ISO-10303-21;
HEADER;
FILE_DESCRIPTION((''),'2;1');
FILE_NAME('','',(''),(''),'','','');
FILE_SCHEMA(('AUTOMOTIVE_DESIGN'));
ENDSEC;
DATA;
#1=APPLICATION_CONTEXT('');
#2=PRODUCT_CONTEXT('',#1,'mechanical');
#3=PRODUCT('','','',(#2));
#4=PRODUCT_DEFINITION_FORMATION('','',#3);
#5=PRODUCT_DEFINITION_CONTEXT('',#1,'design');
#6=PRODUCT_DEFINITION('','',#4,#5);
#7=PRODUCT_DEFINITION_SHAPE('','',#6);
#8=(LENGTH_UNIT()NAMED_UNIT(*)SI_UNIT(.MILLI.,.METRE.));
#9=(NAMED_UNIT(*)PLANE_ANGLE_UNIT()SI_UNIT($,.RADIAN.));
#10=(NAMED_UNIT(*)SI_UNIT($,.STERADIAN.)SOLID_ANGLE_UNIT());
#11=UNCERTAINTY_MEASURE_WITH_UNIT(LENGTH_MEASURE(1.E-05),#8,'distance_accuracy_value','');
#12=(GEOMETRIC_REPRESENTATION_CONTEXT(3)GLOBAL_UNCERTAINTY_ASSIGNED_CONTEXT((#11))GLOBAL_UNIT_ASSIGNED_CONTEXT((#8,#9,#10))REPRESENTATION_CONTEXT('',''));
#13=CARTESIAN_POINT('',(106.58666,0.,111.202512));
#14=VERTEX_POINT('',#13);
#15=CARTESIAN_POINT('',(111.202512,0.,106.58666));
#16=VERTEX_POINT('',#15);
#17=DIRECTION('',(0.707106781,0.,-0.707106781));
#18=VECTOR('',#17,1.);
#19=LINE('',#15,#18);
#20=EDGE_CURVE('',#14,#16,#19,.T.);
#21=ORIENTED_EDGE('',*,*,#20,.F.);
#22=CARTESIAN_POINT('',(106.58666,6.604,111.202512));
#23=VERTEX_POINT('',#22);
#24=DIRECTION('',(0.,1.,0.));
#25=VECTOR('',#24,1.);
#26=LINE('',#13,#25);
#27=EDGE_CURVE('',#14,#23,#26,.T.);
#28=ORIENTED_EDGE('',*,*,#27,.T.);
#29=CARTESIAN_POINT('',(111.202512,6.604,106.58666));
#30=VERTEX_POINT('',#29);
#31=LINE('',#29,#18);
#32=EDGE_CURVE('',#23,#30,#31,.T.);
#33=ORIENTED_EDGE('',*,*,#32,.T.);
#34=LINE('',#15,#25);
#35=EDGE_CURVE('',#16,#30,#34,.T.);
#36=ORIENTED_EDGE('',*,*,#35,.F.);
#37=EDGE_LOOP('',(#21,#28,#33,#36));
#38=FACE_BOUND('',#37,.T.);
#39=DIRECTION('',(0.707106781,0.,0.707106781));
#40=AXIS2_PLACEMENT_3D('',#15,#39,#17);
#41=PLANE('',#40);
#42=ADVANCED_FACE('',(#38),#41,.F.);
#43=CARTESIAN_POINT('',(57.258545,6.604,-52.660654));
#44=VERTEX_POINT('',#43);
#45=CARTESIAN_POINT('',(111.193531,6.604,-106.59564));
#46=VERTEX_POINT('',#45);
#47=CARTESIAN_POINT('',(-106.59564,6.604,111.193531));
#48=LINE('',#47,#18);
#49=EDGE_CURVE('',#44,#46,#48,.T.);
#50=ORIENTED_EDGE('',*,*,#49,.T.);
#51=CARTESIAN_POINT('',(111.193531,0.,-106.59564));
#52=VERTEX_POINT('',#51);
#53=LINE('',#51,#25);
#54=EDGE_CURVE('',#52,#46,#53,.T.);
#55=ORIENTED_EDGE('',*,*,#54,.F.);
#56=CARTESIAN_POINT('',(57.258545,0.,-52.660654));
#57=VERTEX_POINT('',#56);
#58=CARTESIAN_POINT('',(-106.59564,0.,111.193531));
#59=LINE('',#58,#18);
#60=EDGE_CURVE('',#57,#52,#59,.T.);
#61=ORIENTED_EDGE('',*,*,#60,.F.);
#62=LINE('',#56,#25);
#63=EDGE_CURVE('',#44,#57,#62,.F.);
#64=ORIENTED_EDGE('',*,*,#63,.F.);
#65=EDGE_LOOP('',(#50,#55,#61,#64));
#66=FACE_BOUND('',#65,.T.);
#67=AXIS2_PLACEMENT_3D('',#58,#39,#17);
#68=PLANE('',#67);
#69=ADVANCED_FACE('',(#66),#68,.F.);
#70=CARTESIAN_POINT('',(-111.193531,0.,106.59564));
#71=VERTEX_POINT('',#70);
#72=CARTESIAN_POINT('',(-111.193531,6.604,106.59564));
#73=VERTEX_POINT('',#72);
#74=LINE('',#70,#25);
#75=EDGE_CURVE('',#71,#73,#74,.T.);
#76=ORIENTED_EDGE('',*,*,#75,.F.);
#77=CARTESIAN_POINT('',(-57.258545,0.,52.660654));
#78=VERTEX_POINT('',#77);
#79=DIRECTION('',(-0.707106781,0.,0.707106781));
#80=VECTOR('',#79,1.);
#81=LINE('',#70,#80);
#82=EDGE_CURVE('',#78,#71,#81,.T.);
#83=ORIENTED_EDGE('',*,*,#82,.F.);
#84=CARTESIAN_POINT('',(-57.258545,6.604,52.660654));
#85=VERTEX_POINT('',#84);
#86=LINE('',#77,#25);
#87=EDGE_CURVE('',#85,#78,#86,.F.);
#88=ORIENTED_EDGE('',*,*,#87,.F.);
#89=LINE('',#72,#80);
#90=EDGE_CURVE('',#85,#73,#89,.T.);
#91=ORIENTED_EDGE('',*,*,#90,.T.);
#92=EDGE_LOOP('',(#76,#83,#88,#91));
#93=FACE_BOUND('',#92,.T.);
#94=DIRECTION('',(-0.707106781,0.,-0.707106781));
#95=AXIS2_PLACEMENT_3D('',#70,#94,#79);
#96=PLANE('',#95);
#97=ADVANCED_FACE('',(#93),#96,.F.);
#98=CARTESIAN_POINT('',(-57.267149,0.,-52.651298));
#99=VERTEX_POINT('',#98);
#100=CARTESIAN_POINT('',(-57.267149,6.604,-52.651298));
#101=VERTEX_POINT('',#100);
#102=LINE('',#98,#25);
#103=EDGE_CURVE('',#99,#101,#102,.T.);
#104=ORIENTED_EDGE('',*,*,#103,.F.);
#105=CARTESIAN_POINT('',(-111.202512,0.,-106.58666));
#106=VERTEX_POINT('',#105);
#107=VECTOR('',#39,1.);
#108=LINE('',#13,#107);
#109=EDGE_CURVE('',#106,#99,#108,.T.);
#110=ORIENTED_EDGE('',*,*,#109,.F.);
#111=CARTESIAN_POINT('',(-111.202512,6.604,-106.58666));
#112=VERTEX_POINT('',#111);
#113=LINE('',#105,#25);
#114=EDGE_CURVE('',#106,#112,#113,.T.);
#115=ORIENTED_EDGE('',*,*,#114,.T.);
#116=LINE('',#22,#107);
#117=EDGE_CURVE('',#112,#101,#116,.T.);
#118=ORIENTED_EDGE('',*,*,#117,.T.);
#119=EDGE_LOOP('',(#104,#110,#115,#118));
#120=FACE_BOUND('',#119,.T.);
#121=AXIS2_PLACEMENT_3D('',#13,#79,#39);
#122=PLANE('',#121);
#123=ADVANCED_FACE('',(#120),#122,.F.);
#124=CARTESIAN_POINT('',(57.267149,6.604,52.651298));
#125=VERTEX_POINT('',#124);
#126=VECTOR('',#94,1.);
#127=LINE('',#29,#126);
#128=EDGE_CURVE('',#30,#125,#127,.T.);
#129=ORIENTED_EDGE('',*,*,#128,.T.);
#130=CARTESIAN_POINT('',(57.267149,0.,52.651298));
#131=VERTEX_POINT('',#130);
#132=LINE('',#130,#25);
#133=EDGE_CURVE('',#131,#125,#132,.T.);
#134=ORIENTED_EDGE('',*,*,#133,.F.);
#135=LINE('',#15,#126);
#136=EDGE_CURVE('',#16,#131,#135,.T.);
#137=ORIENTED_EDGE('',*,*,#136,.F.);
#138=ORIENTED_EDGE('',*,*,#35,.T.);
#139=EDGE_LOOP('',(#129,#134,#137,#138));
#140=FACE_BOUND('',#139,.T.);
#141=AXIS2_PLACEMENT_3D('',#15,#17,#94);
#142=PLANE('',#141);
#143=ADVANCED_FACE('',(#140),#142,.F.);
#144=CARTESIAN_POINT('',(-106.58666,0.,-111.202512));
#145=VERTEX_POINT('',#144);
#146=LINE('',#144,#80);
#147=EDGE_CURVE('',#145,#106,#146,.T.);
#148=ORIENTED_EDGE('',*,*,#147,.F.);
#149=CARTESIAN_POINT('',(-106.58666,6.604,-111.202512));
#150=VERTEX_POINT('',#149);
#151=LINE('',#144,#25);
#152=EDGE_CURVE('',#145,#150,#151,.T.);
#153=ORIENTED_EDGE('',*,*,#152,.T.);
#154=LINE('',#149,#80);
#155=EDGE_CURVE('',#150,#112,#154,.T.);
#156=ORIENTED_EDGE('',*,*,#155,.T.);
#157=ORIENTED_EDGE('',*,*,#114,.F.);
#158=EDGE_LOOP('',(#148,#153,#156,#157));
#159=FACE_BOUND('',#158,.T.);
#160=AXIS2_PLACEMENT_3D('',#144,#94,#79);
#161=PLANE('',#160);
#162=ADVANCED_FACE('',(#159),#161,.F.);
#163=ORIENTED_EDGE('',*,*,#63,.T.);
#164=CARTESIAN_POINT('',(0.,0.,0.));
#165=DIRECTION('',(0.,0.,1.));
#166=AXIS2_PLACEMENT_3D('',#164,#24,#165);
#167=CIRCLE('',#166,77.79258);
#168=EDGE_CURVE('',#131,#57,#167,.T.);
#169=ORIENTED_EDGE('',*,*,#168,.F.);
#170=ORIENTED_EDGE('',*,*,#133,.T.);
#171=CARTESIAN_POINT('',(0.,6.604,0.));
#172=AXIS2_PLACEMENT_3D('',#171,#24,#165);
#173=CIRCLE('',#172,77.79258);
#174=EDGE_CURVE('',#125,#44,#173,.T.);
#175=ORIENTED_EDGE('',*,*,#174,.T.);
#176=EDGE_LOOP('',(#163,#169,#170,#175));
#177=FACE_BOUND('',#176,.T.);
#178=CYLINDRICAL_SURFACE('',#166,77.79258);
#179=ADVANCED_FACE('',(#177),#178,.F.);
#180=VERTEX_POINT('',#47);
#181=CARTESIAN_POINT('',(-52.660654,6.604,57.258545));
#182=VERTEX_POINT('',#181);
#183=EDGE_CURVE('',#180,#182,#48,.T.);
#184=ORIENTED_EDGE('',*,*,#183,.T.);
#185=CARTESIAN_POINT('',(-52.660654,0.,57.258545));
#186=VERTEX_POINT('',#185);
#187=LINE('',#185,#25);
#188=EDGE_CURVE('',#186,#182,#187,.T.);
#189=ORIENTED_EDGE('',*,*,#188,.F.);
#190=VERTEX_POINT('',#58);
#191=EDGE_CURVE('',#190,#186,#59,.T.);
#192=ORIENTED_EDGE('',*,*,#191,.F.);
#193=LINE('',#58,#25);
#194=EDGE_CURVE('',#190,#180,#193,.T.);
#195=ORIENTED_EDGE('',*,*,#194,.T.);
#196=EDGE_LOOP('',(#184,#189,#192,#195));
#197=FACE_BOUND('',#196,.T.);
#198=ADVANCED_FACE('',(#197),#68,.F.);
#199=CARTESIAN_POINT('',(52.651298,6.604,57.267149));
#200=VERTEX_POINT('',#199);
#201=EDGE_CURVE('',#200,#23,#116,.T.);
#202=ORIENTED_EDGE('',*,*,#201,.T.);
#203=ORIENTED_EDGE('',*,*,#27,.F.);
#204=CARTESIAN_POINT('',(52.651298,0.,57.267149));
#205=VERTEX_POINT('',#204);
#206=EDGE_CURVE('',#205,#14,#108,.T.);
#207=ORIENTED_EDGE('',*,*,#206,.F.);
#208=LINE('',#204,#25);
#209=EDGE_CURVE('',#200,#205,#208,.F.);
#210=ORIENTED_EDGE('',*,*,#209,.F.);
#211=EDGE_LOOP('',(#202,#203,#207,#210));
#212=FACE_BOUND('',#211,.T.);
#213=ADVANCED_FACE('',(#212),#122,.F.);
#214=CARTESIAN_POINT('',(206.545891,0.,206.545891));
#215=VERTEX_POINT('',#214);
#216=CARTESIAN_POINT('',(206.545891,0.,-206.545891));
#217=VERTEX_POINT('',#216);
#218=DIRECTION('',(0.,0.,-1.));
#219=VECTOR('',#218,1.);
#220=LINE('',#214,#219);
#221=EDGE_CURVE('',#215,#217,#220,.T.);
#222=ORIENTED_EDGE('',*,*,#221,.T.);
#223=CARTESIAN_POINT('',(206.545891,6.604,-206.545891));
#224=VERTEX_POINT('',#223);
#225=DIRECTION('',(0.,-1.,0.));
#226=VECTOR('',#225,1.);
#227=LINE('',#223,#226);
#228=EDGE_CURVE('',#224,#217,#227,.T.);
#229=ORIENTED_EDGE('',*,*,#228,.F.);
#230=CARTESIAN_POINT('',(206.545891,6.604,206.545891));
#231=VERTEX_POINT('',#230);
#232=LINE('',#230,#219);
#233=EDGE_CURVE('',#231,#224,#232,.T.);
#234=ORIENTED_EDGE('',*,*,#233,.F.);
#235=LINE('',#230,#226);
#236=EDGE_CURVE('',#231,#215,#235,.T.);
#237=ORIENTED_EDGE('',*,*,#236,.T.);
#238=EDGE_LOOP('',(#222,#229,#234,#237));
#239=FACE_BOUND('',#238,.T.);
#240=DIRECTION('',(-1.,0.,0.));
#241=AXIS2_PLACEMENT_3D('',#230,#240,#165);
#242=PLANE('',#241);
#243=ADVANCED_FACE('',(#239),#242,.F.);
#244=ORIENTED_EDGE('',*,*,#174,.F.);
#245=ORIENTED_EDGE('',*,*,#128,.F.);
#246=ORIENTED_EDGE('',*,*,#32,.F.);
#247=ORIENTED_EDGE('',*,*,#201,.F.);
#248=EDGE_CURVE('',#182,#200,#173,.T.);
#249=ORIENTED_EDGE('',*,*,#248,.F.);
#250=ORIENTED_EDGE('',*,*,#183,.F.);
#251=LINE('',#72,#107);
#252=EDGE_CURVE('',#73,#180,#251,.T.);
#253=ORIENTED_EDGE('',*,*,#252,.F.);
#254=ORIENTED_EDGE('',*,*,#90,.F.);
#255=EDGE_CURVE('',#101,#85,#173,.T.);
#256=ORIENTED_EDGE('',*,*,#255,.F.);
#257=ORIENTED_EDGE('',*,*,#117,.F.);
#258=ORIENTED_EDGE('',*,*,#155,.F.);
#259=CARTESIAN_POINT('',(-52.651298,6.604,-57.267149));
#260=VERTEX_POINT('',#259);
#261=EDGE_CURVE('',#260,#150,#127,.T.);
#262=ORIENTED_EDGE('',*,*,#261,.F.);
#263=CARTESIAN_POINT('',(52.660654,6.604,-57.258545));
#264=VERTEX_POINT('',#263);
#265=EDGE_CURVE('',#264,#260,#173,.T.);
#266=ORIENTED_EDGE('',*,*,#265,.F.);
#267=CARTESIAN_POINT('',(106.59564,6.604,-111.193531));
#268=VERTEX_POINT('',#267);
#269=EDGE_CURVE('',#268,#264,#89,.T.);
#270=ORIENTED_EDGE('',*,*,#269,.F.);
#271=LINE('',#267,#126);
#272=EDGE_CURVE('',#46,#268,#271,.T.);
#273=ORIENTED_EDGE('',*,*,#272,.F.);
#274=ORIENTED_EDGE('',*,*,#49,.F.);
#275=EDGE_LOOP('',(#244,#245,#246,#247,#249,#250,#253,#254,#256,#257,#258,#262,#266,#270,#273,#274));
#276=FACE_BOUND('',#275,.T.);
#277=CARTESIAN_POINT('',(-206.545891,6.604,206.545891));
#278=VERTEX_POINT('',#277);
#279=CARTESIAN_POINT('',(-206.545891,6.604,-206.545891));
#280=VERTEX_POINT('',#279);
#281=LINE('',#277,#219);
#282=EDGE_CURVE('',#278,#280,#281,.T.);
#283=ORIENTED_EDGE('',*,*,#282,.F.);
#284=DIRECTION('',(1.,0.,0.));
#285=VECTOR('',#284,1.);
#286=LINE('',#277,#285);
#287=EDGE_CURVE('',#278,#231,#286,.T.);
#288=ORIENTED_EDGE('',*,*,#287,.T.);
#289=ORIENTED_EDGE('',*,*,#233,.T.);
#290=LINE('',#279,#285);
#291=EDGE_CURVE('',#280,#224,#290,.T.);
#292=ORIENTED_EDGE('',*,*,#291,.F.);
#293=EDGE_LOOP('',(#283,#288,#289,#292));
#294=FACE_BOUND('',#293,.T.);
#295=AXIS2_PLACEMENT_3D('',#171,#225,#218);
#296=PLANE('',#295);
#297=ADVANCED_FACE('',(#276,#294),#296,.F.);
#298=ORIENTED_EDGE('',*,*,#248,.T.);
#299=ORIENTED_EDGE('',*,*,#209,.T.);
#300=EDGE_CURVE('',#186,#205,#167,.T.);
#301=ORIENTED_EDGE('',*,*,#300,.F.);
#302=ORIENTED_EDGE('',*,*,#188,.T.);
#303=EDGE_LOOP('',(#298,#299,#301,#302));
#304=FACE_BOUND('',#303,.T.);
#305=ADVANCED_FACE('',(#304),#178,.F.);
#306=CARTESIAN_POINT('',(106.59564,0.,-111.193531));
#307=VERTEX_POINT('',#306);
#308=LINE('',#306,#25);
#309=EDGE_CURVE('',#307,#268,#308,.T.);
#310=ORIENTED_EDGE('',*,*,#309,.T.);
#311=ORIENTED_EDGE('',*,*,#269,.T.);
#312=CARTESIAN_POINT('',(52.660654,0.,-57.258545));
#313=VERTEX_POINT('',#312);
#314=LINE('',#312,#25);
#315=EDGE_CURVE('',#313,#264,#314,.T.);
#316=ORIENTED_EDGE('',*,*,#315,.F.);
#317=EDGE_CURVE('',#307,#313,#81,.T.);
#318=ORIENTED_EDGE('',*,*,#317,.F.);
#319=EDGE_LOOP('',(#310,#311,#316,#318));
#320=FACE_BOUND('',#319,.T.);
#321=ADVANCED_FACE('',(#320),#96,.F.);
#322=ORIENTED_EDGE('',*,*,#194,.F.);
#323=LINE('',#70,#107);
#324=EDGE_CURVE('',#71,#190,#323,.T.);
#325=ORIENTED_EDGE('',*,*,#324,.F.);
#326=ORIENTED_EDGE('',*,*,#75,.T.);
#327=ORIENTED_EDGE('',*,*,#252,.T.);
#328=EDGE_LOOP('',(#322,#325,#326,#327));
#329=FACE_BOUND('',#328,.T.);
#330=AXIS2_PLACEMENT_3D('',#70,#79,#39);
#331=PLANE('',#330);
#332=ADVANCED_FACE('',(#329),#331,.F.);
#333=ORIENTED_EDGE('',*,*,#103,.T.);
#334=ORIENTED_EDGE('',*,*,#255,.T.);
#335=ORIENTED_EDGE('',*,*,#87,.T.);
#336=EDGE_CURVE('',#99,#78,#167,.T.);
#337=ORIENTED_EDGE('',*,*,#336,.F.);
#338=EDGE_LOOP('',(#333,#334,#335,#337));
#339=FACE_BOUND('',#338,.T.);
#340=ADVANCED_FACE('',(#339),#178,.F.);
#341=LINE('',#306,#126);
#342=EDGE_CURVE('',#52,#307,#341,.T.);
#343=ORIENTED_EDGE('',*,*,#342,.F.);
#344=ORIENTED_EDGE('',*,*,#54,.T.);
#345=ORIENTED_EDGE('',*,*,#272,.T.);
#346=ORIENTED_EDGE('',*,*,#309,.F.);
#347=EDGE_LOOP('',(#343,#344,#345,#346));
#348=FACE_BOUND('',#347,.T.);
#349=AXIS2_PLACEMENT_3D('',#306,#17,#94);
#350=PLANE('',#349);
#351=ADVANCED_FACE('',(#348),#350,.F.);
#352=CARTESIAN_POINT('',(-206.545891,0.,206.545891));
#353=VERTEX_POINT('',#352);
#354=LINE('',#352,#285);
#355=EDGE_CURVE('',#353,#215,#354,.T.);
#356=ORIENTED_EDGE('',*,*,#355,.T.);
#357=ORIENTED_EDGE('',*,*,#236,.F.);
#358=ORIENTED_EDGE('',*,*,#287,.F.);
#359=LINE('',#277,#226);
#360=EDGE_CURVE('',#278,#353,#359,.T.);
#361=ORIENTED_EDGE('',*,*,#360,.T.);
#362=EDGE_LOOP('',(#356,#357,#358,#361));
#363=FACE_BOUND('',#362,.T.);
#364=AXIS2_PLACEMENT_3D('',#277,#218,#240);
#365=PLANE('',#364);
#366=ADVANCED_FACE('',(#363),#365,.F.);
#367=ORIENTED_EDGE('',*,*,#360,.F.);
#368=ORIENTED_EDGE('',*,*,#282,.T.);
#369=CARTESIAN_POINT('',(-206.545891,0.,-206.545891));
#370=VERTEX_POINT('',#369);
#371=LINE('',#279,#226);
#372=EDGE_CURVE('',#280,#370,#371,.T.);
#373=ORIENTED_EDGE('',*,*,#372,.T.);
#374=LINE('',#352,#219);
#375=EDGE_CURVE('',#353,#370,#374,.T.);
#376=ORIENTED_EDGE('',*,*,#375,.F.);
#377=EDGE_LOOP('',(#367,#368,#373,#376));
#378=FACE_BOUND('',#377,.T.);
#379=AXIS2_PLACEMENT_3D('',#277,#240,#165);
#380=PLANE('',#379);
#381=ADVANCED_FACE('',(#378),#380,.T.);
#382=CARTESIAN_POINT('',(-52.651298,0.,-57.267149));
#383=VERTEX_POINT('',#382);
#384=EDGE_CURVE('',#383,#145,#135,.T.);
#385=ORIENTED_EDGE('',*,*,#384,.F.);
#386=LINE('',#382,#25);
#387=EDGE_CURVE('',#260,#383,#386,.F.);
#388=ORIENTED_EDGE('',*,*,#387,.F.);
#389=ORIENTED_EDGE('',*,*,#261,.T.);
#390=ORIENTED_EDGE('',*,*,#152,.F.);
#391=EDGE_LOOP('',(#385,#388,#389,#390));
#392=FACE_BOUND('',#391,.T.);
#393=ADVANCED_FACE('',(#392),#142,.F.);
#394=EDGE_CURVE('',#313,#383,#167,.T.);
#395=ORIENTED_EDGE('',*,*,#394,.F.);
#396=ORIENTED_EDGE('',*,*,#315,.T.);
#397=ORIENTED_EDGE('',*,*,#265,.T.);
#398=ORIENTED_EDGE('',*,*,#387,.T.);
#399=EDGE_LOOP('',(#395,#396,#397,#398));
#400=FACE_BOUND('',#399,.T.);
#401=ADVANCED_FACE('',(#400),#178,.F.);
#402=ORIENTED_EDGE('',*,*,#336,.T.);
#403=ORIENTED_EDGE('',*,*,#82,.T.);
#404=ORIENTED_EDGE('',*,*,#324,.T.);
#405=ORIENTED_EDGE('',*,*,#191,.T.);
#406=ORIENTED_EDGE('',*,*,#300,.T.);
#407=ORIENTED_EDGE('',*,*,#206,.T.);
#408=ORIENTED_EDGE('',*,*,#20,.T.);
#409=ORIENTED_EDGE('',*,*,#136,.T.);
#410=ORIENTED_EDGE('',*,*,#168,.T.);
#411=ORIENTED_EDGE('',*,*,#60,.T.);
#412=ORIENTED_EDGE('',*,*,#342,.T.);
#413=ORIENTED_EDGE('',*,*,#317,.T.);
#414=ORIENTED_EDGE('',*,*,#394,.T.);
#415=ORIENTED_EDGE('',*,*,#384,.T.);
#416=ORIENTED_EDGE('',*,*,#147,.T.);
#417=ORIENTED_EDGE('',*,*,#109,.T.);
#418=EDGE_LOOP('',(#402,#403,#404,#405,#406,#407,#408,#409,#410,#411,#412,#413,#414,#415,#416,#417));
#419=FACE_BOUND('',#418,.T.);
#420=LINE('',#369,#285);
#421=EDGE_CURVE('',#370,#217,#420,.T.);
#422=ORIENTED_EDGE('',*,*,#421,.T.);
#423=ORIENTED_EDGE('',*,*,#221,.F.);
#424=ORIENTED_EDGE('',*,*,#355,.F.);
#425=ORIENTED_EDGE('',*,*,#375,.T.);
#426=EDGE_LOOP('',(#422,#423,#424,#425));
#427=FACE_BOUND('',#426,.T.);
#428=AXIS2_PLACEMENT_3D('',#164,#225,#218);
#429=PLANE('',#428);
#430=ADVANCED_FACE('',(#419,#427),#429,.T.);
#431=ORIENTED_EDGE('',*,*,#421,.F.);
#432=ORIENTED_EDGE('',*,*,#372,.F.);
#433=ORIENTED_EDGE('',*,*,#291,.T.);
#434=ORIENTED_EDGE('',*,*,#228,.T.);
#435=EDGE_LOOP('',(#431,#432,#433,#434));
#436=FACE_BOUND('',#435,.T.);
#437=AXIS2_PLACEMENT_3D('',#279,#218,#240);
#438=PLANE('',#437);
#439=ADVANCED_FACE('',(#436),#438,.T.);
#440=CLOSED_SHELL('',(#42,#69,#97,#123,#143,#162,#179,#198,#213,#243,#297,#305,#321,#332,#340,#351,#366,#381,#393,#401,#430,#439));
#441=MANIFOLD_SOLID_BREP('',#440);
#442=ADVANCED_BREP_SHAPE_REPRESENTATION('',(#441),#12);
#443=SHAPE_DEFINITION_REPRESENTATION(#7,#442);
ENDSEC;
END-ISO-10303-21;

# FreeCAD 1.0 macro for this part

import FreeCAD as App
import Part
import Sketcher
from FreeCAD import Vector
Q = App.Units.Quantity

doc = App.newDocument("Part")
body = doc.addObject("PartDesign::Body", "Body")

sketch1 = doc.addObject("Sketcher::SketchObject", "Sketch")
body.addObject(sketch1)
sketch1.AttachmentSupport = (doc.XZ_Plane, [""])
sketch1.MapMode = "FlatFace"
sketch1.addGeometry([
    Part.LineSegment(Vector(-207, -207, 0), Vector(-207, 207, 0)),
    Part.LineSegment(Vector(-207, 207, 0), Vector(207, 207, 0)),
    Part.LineSegment(Vector(207, 207, 0), Vector(207, -207, 0)),
    Part.LineSegment(Vector(207, -207, 0), Vector(-207, -207, 0)),
], False)
sketch1.addConstraint([
    Sketcher.Constraint("Coincident", 0, 2, 1, 1),
    Sketcher.Constraint("Coincident", 1, 2, 2, 1),
    Sketcher.Constraint("Coincident", 2, 2, 3, 1),
    Sketcher.Constraint("Coincident", 3, 2, 0, 1),
    Sketcher.Constraint("Vertical", 0),
    Sketcher.Constraint("Horizontal", 1),
    Sketcher.Constraint("Vertical", 2),
    Sketcher.Constraint("Horizontal", 3),
    Sketcher.Constraint("Symmetric", 0, 2, 2, 2, -1, 1),
    Sketcher.Constraint("Equal", 3, 0),
    Sketcher.Constraint("DistanceX", 1, 1, 1, 2, 413.091782),
])
pad1 = doc.addObject("PartDesign::Pad", "Pad")
body.addObject(pad1)
pad1.Profile = sketch1
pad1.Length = Q("0.26 in")
pad1.Reversed = True

sketch2 = doc.addObject("Sketcher::SketchObject", "Sketch001")
body.addObject(sketch2)
sketch2.AttachmentSupport = (doc.XZ_Plane, [""])
sketch2.MapMode = "FlatFace"
sketch2.AttachmentOffset = App.Placement(Vector(0, 0, -0.26 * 25.4), App.Rotation())
sketch2.addGeometry(Part.Circle(Vector(0, 0, 0), Vector(0, 0, 1), 78), False)
sketch2.addConstraint([
    Sketcher.Constraint("Coincident", 0, 3, -1, 1),
    Sketcher.Constraint("Diameter", 0, Q("6.1254 in")),
])
pocket1 = doc.addObject("PartDesign::Pocket", "Pocket")
body.addObject(pocket1)
pocket1.Profile = sketch2
pocket1.Length = Q("0.26 in")
pocket1.Reversed = True

sketch3 = doc.addObject("Sketcher::SketchObject", "Sketch002")
body.addObject(sketch3)
sketch3.AttachmentSupport = (doc.XZ_Plane, [""])
sketch3.MapMode = "FlatFace"
sketch3.AttachmentOffset = App.Placement(Vector(0, 0, -0.26 * 25.4), App.Rotation())
sketch3.addGeometry([
    Part.LineSegment(Vector(107, -111, 0), Vector(-111, 107, 0)),
    Part.LineSegment(Vector(-111, 107, 0), Vector(-107, 111, 0)),
    Part.LineSegment(Vector(-107, 111, 0), Vector(111, -107, 0)),
    Part.LineSegment(Vector(111, -107, 0), Vector(107, -111, 0)),
], False)
sketch3.addConstraint([
    Sketcher.Constraint("Coincident", 0, 2, 1, 1),
    Sketcher.Constraint("Coincident", 1, 2, 2, 1),
    Sketcher.Constraint("Coincident", 2, 2, 3, 1),
    Sketcher.Constraint("Coincident", 3, 2, 0, 1),
    Sketcher.Constraint("Symmetric", 0, 2, 2, 2, -1, 1),
    Sketcher.Constraint("Symmetric", 1, 2, 3, 2, -1, 1),
    Sketcher.Constraint("Perpendicular", 0, 1),
    Sketcher.Constraint("Angle", 0, Q("135 deg")),
    Sketcher.Constraint("Distance", 0, Q("12.126 in")),
    Sketcher.Constraint("Distance", 1, Q("0.256 in")),
])
pocket2 = doc.addObject("PartDesign::Pocket", "Pocket001")
body.addObject(pocket2)
pocket2.Profile = sketch3
pocket2.Length = Q("0.26 in")
pocket2.Reversed = True

sketch4 = doc.addObject("Sketcher::SketchObject", "Sketch003")
body.addObject(sketch4)
sketch4.AttachmentSupport = (doc.XZ_Plane, [""])
sketch4.MapMode = "FlatFace"
sketch4.AttachmentOffset = App.Placement(Vector(0, 0, -0.26 * 25.4), App.Rotation())
sketch4.addGeometry([
    Part.LineSegment(Vector(111, 107, 0), Vector(-107, -111, 0)),
    Part.LineSegment(Vector(-107, -111, 0), Vector(-111, -107, 0)),
    Part.LineSegment(Vector(-111, -107, 0), Vector(107, 111, 0)),
    Part.LineSegment(Vector(107, 111, 0), Vector(111, 107, 0)),
], False)
sketch4.addConstraint([
    Sketcher.Constraint("Coincident", 0, 2, 1, 1),
    Sketcher.Constraint("Coincident", 1, 2, 2, 1),
    Sketcher.Constraint("Coincident", 2, 2, 3, 1),
    Sketcher.Constraint("Coincident", 3, 2, 0, 1),
    Sketcher.Constraint("Symmetric", 0, 2, 2, 2, -1, 1),
    Sketcher.Constraint("Symmetric", 1, 2, 3, 2, -1, 1),
    Sketcher.Constraint("Perpendicular", 0, 1),
    Sketcher.Constraint("Angle", 0, Q("-135 deg")),
    Sketcher.Constraint("Distance", 0, Q("12.126 in")),
    Sketcher.Constraint("Distance", 1, Q("0.257 in")),
])
pocket3 = doc.addObject("PartDesign::Pocket", "Pocket002")
body.addObject(pocket3)
pocket3.Profile = sketch4
pocket3.Length = Q("0.26 in")
pocket3.Reversed = True

doc.recompute()
